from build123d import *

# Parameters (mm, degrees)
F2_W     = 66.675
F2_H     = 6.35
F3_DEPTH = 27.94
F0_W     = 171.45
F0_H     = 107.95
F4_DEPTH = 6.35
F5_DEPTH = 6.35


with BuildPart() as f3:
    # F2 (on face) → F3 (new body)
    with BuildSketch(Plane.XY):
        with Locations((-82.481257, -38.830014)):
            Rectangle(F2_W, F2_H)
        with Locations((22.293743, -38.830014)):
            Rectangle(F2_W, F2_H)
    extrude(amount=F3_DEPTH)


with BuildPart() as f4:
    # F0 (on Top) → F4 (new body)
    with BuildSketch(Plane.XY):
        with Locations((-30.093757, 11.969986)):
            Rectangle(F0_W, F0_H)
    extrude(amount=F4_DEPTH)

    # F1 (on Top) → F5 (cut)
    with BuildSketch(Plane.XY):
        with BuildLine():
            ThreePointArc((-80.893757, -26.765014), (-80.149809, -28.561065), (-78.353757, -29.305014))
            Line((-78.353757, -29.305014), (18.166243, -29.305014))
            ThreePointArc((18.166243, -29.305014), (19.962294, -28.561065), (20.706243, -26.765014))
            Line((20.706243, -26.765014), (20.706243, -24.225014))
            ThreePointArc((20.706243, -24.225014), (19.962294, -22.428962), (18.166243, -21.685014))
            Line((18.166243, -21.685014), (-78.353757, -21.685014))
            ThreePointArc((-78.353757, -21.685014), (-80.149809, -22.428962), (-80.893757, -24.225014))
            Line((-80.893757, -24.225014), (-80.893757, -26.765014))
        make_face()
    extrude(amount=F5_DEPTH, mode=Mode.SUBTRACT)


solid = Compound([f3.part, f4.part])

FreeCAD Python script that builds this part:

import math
import FreeCAD as App
import Part
import Sketcher
Q = App.Units.Quantity

doc = App.newDocument("Part")
body = doc.addObject("PartDesign::Body", "Body")
body.AllowCompound = True

sketch1 = body.newObject("Sketcher::SketchObject", "Sketch")
sketch1.AttachmentSupport = (doc.getObject("XY_Plane"), [""])
sketch1.MapMode = "FlatFace"
sketch1.addGeometry(Part.LineSegment(App.Vector(-116, -36, 0), App.Vector(-116, -42, 0)), False)
sketch1.addGeometry(Part.LineSegment(App.Vector(-116, -42, 0), App.Vector(-49, -42, 0)), False)
sketch1.addGeometry(Part.LineSegment(App.Vector(-49, -42, 0), App.Vector(-49, -36, 0)), False)
sketch1.addGeometry(Part.LineSegment(App.Vector(-49, -36, 0), App.Vector(-116, -36, 0)), False)
sketch1.addGeometry(Part.LineSegment(App.Vector(-11, -36, 0), App.Vector(-11, -42, 0)), False)
sketch1.addGeometry(Part.LineSegment(App.Vector(-11, -42, 0), App.Vector(56, -42, 0)), False)
sketch1.addGeometry(Part.LineSegment(App.Vector(56, -42, 0), App.Vector(56, -36, 0)), False)
sketch1.addGeometry(Part.LineSegment(App.Vector(56, -36, 0), App.Vector(-11, -36, 0)), False)
sketch1.addConstraint(Sketcher.Constraint("Coincident", 0, 2, 1, 1))
sketch1.addConstraint(Sketcher.Constraint("Coincident", 1, 2, 2, 1))
sketch1.addConstraint(Sketcher.Constraint("Coincident", 2, 2, 3, 1))
sketch1.addConstraint(Sketcher.Constraint("Coincident", 3, 2, 0, 1))
sketch1.addConstraint(Sketcher.Constraint("Coincident", 4, 2, 5, 1))
sketch1.addConstraint(Sketcher.Constraint("Coincident", 5, 2, 6, 1))
sketch1.addConstraint(Sketcher.Constraint("Coincident", 6, 2, 7, 1))
sketch1.addConstraint(Sketcher.Constraint("Coincident", 7, 2, 4, 1))
sketch1.addConstraint(Sketcher.Constraint("Vertical", 0))
sketch1.addConstraint(Sketcher.Constraint("Horizontal", 1))
sketch1.addConstraint(Sketcher.Constraint("Vertical", 2))
sketch1.addConstraint(Sketcher.Constraint("Horizontal", 3))
sketch1.addConstraint(Sketcher.Constraint("Vertical", 4))
sketch1.addConstraint(Sketcher.Constraint("Horizontal", 5))
sketch1.addConstraint(Sketcher.Constraint("Vertical", 6))
sketch1.addConstraint(Sketcher.Constraint("Horizontal", 7))
sketch1.addConstraint(Sketcher.Constraint("Horizontal", 1, 2, 4, 2))
sketch1.addConstraint(Sketcher.Constraint("Horizontal", 3, 2, 6, 2))
sketch1.addConstraint(Sketcher.Constraint("Equal", 3, 5))
sketch1.addConstraint(Sketcher.Constraint("DistanceY", 0, 2, 0, 1, Q("0.25 in")))
sketch1.addConstraint(Sketcher.Constraint("DistanceX", 1, 2, 4, 2, Q("1.5 in")))
sketch1.addConstraint(Sketcher.Constraint("DistanceX", 1, 1, 1, 2, Q("2.625 in")))
sketch1.addConstraint(Sketcher.Constraint("DistanceX", 0, 2, -1, 1, Q("115.818757 mm")))
sketch1.addConstraint(Sketcher.Constraint("DistanceY", 0, 2, -1, 1, Q("42.005014 mm")))
pad1 = body.newObject("PartDesign::Pad", "Pad")
pad1.Profile = sketch1
pad1.Length = Q("1.1 in")
body2 = doc.addObject("PartDesign::Body", "Body001")

sketch2 = body2.newObject("Sketcher::SketchObject", "Sketch001")
sketch2.AttachmentSupport = (doc.getObject("XY_Plane001"), [""])
sketch2.MapMode = "FlatFace"
sketch2.addGeometry(Part.LineSegment(App.Vector(-116, 66, 0), App.Vector(-116, -42, 0)), False)
sketch2.addGeometry(Part.LineSegment(App.Vector(-116, -42, 0), App.Vector(56, -42, 0)), False)
sketch2.addGeometry(Part.LineSegment(App.Vector(56, -42, 0), App.Vector(56, 66, 0)), False)
sketch2.addGeometry(Part.LineSegment(App.Vector(56, 66, 0), App.Vector(-116, 66, 0)), False)
sketch2.addConstraint(Sketcher.Constraint("Coincident", 0, 2, 1, 1))
sketch2.addConstraint(Sketcher.Constraint("Coincident", 1, 2, 2, 1))
sketch2.addConstraint(Sketcher.Constraint("Coincident", 2, 2, 3, 1))
sketch2.addConstraint(Sketcher.Constraint("Coincident", 3, 2, 0, 1))
sketch2.addConstraint(Sketcher.Constraint("Vertical", 0))
sketch2.addConstraint(Sketcher.Constraint("Horizontal", 1))
sketch2.addConstraint(Sketcher.Constraint("Vertical", 2))
sketch2.addConstraint(Sketcher.Constraint("Horizontal", 3))
sketch2.addConstraint(Sketcher.Constraint("DistanceX", 1, 1, 1, 2, Q("6.75 in")))
sketch2.addConstraint(Sketcher.Constraint("DistanceY", 0, 2, 0, 1, Q("4.25 in")))
sketch2.addConstraint(Sketcher.Constraint("DistanceX", 0, 2, -1, 1, Q("115.818757 mm")))
sketch2.addConstraint(Sketcher.Constraint("DistanceY", 0, 2, -1, 1, Q("42.005014 mm")))
pad2 = body2.newObject("PartDesign::Pad", "Pad001")
pad2.Profile = sketch2
pad2.Length = Q("0.25 in")

sketch3 = body2.newObject("Sketcher::SketchObject", "Sketch002")
sketch3.AttachmentSupport = (doc.getObject("XY_Plane001"), [""])
sketch3.MapMode = "FlatFace"
sketch3.addGeometry(Part.ArcOfCircle(Part.Circle(App.Vector(-78.4, -26.8, 0), App.Vector(0, 0, 1), 2.5), math.radians(180), math.radians(270)), False)
sketch3.addGeometry(Part.LineSegment(App.Vector(-78.4, -29.3, 0), App.Vector(18.2, -29.3, 0)), False)
sketch3.addGeometry(Part.ArcOfCircle(Part.Circle(App.Vector(18.2, -26.8, 0), App.Vector(0, 0, 1), 2.5), math.radians(-90), math.radians(0)), False)
sketch3.addGeometry(Part.LineSegment(App.Vector(20.7, -26.8, 0), App.Vector(20.7, -24.2, 0)), False)
sketch3.addGeometry(Part.ArcOfCircle(Part.Circle(App.Vector(18.2, -24.2, 0), App.Vector(0, 0, 1), 2.5), math.radians(0), math.radians(90)), False)
sketch3.addGeometry(Part.LineSegment(App.Vector(18.2, -21.7, 0), App.Vector(-78.4, -21.7, 0)), False)
sketch3.addGeometry(Part.ArcOfCircle(Part.Circle(App.Vector(-78.4, -24.2, 0), App.Vector(0, 0, 1), 2.5), math.radians(90), math.radians(180)), False)
sketch3.addGeometry(Part.LineSegment(App.Vector(-80.9, -24.2, 0), App.Vector(-80.9, -26.8, 0)), False)
sketch3.addConstraint(Sketcher.Constraint("Tangent", 0, 2, 1, 1))
sketch3.addConstraint(Sketcher.Constraint("Tangent", 1, 2, 2, 1))
sketch3.addConstraint(Sketcher.Constraint("Tangent", 2, 2, 3, 1))
sketch3.addConstraint(Sketcher.Constraint("Tangent", 3, 2, 4, 1))
sketch3.addConstraint(Sketcher.Constraint("Tangent", 4, 2, 5, 1))
sketch3.addConstraint(Sketcher.Constraint("Tangent", 5, 2, 6, 1))
sketch3.addConstraint(Sketcher.Constraint("Tangent", 6, 2, 7, 1))
sketch3.addConstraint(Sketcher.Constraint("Tangent", 7, 2, 0, 1))
sketch3.addConstraint(Sketcher.Constraint("Horizontal", 1))
sketch3.addConstraint(Sketcher.Constraint("Vertical", 3))
sketch3.addConstraint(Sketcher.Constraint("Horizontal", 5))
sketch3.addConstraint(Sketcher.Constraint("Vertical", 7))
sketch3.addConstraint(Sketcher.Constraint("Equal", 0, 2))
sketch3.addConstraint(Sketcher.Constraint("Equal", 2, 4))
sketch3.addConstraint(Sketcher.Constraint("Equal", 4, 6))
sketch3.addConstraint(Sketcher.Constraint("Radius", 0, Q("0.1 in")))
sketch3.addConstraint(Sketcher.Constraint("DistanceX", 1, 1, 1, 2, Q("3.8 in")))
sketch3.addConstraint(Sketcher.Constraint("DistanceY", 3, 1, 3, 2, Q("0.1 in")))
sketch3.addConstraint(Sketcher.Constraint("DistanceX", 6, 3, -1, 1, Q("78.35376 mm")))
sketch3.addConstraint(Sketcher.Constraint("DistanceY", 6, 3, -1, 1, Q("24.225011 mm")))
pocket1 = body2.newObject("PartDesign::Pocket", "Pocket")
pocket1.Profile = sketch3
pocket1.Length = Q("0.25 in")
pocket1.Reversed = True

doc.recompute()
